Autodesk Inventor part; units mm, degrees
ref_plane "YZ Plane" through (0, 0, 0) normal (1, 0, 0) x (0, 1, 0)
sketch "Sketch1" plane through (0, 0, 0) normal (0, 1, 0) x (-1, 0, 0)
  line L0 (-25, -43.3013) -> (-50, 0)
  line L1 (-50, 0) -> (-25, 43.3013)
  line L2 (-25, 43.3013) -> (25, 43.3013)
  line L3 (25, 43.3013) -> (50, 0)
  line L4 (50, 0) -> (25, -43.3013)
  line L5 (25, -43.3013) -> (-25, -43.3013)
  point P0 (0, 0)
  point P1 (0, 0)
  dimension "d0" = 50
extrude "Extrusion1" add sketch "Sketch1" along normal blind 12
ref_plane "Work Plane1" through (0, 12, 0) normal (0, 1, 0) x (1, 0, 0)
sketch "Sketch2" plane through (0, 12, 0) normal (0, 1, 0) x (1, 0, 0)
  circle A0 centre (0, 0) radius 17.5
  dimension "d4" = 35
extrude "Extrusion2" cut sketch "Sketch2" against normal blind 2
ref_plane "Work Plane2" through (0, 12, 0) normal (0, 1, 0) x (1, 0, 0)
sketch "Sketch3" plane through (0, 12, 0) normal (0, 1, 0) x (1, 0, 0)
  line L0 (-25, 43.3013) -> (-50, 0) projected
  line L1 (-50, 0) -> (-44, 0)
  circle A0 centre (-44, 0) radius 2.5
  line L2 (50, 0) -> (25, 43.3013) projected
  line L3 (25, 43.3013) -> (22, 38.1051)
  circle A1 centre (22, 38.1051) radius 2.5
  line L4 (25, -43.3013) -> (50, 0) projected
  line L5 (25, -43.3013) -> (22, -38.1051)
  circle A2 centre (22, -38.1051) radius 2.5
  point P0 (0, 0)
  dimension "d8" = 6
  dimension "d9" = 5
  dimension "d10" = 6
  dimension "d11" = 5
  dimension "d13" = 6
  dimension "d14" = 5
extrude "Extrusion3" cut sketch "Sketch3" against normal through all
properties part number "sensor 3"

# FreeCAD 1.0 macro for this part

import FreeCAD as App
import Part
import Sketcher

V = App.Vector
Q = App.Units.Quantity

doc = App.newDocument("Part")
body = doc.addObject("PartDesign::Body", "Body")

# Sketch on XZ plane
sketch1 = body.newObject("Sketcher::SketchObject", "Sketch")
sketch1.AttachmentSupport = (doc.getObject("XZ_Plane"), [""])
sketch1.MapMode = "FlatFace"
sketch1.addGeometry(Part.LineSegment(V(50, 0, 0), V(25, -43, 0)), False)
sketch1.addGeometry(Part.LineSegment(V(25, -43, 0), V(-25, -43, 0)), False)
sketch1.addGeometry(Part.LineSegment(V(-25, -43, 0), V(-50, 0, 0)), False)
sketch1.addGeometry(Part.LineSegment(V(-50, 0, 0), V(-25, 43, 0)), False)
sketch1.addGeometry(Part.LineSegment(V(-25, 43, 0), V(25, 43, 0)), False)
sketch1.addGeometry(Part.LineSegment(V(25, 43, 0), V(50, 0, 0)), False)
sketch1.addConstraint(Sketcher.Constraint("Coincident", 0, 2, 1, 1))
sketch1.addConstraint(Sketcher.Constraint("Coincident", 1, 2, 2, 1))
sketch1.addConstraint(Sketcher.Constraint("Coincident", 2, 2, 3, 1))
sketch1.addConstraint(Sketcher.Constraint("Coincident", 3, 2, 4, 1))
sketch1.addConstraint(Sketcher.Constraint("Coincident", 4, 2, 5, 1))
sketch1.addConstraint(Sketcher.Constraint("Coincident", 5, 2, 0, 1))
sketch1.addConstraint(Sketcher.Constraint("Horizontal", 1))
sketch1.addConstraint(Sketcher.Constraint("Horizontal", 4))
sketch1.addConstraint(Sketcher.Constraint("Symmetric", 0, 2, 3, 2, -1, 1))
sketch1.addConstraint(Sketcher.Constraint("Symmetric", 2, 2, 5, 2, -1, 1))
sketch1.addConstraint(Sketcher.Constraint("PointOnObject", 2, 2, -1))
sketch1.addConstraint(Sketcher.Constraint("Parallel", 2, 5))
sketch1.addConstraint(Sketcher.Constraint("Vertical", 1, 2, 3, 2))
sketch1.addConstraint(Sketcher.Constraint("DistanceX", 1, 2, 1, 1, Q("50 mm")))
sketch1.addConstraint(Sketcher.Constraint("Distance", 0, Q("50 mm")))
sketch1.addConstraint(Sketcher.Constraint("DistanceX", 2, 2, -1, 1, Q("50 mm")))
pad1 = body.newObject("PartDesign::Pad", "Pad")
pad1.Profile = sketch1
pad1.Length = 12
pad1.Reversed = True

# Sketch on XZ plane
sketch2 = body.newObject("Sketcher::SketchObject", "Sketch001")
sketch2.AttachmentSupport = (doc.getObject("XZ_Plane"), [""])
sketch2.MapMode = "FlatFace"
sketch2.AttachmentOffset = App.Placement(V(0, 0, -12), App.Rotation())
sketch2.addGeometry(Part.Circle(V(0, 0, 0), V(0, 0, 1), 18), False)
sketch2.addConstraint(Sketcher.Constraint("Coincident", 0, 3, -1, 1))
sketch2.addConstraint(Sketcher.Constraint("Diameter", 0, Q("35 mm")))
pocket1 = body.newObject("PartDesign::Pocket", "Pocket")
pocket1.Profile = sketch2
pocket1.Length = 2
pocket1.Reversed = True

# Sketch on XZ plane
sketch3 = body.newObject("Sketcher::SketchObject", "Sketch002")
sketch3.AttachmentSupport = (doc.getObject("XZ_Plane"), [""])
sketch3.MapMode = "FlatFace"
sketch3.AttachmentOffset = App.Placement(V(0, 0, -12), App.Rotation())
sketch3.addGeometry(Part.Circle(V(-44, 0, 0), V(0, 0, 1), 2.5), False)
sketch3.addGeometry(Part.Circle(V(22, -38.1, 0), V(0, 0, 1), 2.5), False)
sketch3.addGeometry(Part.Circle(V(22, 38.1, 0), V(0, 0, 1), 2.5), False)
sketch3.addConstraint(Sketcher.Constraint("Equal", 0, 1))
sketch3.addConstraint(Sketcher.Constraint("Equal", 1, 2))
sketch3.addConstraint(Sketcher.Constraint("Symmetric", 1, 3, 2, 3, -1))
sketch3.addConstraint(Sketcher.Constraint("PointOnObject", 0, 3, -1))
sketch3.addConstraint(Sketcher.Constraint("Diameter", 0, Q("5 mm")))
sketch3.addConstraint(Sketcher.Constraint("DistanceX", 0, 3, -1, 1, Q("44 mm")))
sketch3.addConstraint(Sketcher.Constraint("DistanceX", -1, 1, 1, 3, Q("22 mm")))
sketch3.addConstraint(Sketcher.Constraint("DistanceY", 1, 3, -1, 1, Q("38.105 mm")))
pocket2 = body.newObject("PartDesign::Pocket", "Pocket001")
pocket2.Profile = sketch3
pocket2.Type = "ThroughAll"
pocket2.Reversed = True

doc.recompute()
